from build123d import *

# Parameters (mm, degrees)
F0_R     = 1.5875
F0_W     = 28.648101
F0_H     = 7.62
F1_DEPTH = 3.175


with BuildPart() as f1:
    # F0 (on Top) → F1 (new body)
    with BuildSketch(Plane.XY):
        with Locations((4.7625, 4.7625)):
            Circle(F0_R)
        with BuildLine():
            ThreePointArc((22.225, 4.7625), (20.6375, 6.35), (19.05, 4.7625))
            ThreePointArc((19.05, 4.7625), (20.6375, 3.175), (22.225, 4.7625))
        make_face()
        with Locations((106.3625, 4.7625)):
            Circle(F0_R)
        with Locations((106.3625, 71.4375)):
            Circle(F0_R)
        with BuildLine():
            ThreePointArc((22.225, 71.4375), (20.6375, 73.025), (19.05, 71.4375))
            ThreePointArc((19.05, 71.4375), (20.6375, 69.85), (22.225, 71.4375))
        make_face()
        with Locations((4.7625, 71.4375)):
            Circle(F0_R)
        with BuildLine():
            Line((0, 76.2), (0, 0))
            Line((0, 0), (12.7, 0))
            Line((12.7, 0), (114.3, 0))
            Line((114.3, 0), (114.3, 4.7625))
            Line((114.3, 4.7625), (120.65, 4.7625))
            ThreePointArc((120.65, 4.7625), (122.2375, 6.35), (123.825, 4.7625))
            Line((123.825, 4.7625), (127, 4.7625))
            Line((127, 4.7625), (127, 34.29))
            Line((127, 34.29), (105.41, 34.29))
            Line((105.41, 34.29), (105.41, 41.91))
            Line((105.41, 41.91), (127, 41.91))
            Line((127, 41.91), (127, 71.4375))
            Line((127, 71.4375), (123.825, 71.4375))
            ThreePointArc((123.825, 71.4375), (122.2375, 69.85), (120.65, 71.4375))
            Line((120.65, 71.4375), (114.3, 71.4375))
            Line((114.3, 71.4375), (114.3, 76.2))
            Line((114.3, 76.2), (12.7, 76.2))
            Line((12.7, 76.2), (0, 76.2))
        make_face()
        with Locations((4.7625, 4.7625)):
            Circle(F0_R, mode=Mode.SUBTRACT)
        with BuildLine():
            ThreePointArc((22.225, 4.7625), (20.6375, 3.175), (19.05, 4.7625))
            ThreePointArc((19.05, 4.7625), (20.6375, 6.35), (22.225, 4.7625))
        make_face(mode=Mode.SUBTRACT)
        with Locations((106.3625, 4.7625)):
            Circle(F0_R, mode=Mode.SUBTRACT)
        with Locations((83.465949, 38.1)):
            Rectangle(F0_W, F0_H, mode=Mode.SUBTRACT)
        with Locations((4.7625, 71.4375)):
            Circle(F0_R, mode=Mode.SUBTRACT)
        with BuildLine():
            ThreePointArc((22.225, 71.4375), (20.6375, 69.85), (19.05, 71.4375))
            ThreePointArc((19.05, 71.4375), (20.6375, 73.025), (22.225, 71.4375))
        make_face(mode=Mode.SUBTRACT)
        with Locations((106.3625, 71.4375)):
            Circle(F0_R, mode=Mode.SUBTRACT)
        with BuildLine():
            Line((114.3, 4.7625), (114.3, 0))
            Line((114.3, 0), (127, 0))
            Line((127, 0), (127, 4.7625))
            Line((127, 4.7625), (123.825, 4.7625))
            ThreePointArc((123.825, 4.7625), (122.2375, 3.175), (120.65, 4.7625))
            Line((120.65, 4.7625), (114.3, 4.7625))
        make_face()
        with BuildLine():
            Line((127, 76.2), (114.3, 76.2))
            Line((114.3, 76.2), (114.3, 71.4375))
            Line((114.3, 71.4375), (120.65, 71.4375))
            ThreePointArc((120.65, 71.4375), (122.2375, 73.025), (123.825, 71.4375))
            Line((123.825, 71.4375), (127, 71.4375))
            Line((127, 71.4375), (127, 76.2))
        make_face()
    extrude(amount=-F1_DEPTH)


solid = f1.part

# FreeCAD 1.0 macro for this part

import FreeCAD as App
import Part
import Sketcher
Q = App.Units.Quantity

doc = App.newDocument("Part")
body = doc.addObject("PartDesign::Body", "Body")

# Sketch on XY plane
sketch1 = body.newObject("Sketcher::SketchObject", "Sketch")
sketch1.AttachmentSupport = (doc.getObject("XY_Plane"), [""])
sketch1.MapMode = "FlatFace"
sketch1.addGeometry(Part.LineSegment(App.Vector(0, 76.2, 0), App.Vector(0, 0, 0)), False)
sketch1.addGeometry(Part.LineSegment(App.Vector(0, 0, 0), App.Vector(127, 0, 0)), False)
sketch1.addGeometry(Part.LineSegment(App.Vector(127, 0, 0), App.Vector(127, 34.3, 0)), False)
sketch1.addGeometry(Part.LineSegment(App.Vector(127, 34.3, 0), App.Vector(105.4, 34.3, 0)), False)
sketch1.addGeometry(Part.LineSegment(App.Vector(105.4, 34.3, 0), App.Vector(105.4, 41.9, 0)), False)
sketch1.addGeometry(Part.LineSegment(App.Vector(105.4, 41.9, 0), App.Vector(127, 41.9, 0)), False)
sketch1.addGeometry(Part.LineSegment(App.Vector(127, 41.9, 0), App.Vector(127, 76.2, 0)), False)
sketch1.addGeometry(Part.LineSegment(App.Vector(127, 76.2, 0), App.Vector(0, 76.2, 0)), False)
sketch1.addGeometry(Part.Circle(App.Vector(122.2, 71.4, 0), App.Vector(0, 0, 1), 1.6), False)
sketch1.addGeometry(Part.Circle(App.Vector(122.2, 4.8, 0), App.Vector(0, 0, 1), 1.6), False)
sketch1.addGeometry(Part.Circle(App.Vector(4.8, 4.8, 0), App.Vector(0, 0, 1), 1.6), False)
sketch1.addGeometry(Part.Circle(App.Vector(20.6, 4.8, 0), App.Vector(0, 0, 1), 1.6), False)
sketch1.addGeometry(Part.Circle(App.Vector(106.4, 4.8, 0), App.Vector(0, 0, 1), 1.6), False)
sketch1.addGeometry(Part.Circle(App.Vector(4.8, 71.4, 0), App.Vector(0, 0, 1), 1.6), False)
sketch1.addGeometry(Part.Circle(App.Vector(20.6, 71.4, 0), App.Vector(0, 0, 1), 1.6), False)
sketch1.addGeometry(Part.LineSegment(App.Vector(97.8, 34.3, 0), App.Vector(69.1, 34.3, 0)), False)
sketch1.addGeometry(Part.LineSegment(App.Vector(69.1, 34.3, 0), App.Vector(69.1, 41.9, 0)), False)
sketch1.addGeometry(Part.LineSegment(App.Vector(69.1, 41.9, 0), App.Vector(97.8, 41.9, 0)), False)
sketch1.addGeometry(Part.LineSegment(App.Vector(97.8, 41.9, 0), App.Vector(97.8, 34.3, 0)), False)
sketch1.addGeometry(Part.Circle(App.Vector(106.4, 71.4, 0), App.Vector(0, 0, 1), 1.6), False)
sketch1.addConstraint(Sketcher.Constraint("Coincident", 0, 2, 1, 1))
sketch1.addConstraint(Sketcher.Constraint("Coincident", 1, 2, 2, 1))
sketch1.addConstraint(Sketcher.Constraint("Coincident", 2, 2, 3, 1))
sketch1.addConstraint(Sketcher.Constraint("Coincident", 3, 2, 4, 1))
sketch1.addConstraint(Sketcher.Constraint("Coincident", 4, 2, 5, 1))
sketch1.addConstraint(Sketcher.Constraint("Coincident", 5, 2, 6, 1))
sketch1.addConstraint(Sketcher.Constraint("Coincident", 6, 2, 7, 1))
sketch1.addConstraint(Sketcher.Constraint("Coincident", 7, 2, 0, 1))
sketch1.addConstraint(Sketcher.Constraint("Coincident", 15, 2, 16, 1))
sketch1.addConstraint(Sketcher.Constraint("Coincident", 16, 2, 17, 1))
sketch1.addConstraint(Sketcher.Constraint("Coincident", 17, 2, 18, 1))
sketch1.addConstraint(Sketcher.Constraint("Coincident", 18, 2, 15, 1))
sketch1.addConstraint(Sketcher.Constraint("Vertical", 0))
sketch1.addConstraint(Sketcher.Constraint("Horizontal", 1))
sketch1.addConstraint(Sketcher.Constraint("Vertical", 2))
sketch1.addConstraint(Sketcher.Constraint("Horizontal", 3))
sketch1.addConstraint(Sketcher.Constraint("Vertical", 4))
sketch1.addConstraint(Sketcher.Constraint("Horizontal", 5))
sketch1.addConstraint(Sketcher.Constraint("Vertical", 6))
sketch1.addConstraint(Sketcher.Constraint("Horizontal", 7))
sketch1.addConstraint(Sketcher.Constraint("Horizontal", 15))
sketch1.addConstraint(Sketcher.Constraint("Vertical", 16))
sketch1.addConstraint(Sketcher.Constraint("Horizontal", 17))
sketch1.addConstraint(Sketcher.Constraint("Vertical", 18))
sketch1.addConstraint(Sketcher.Constraint("Coincident", 0, 2, -1, 1))
sketch1.addConstraint(Sketcher.Constraint("Equal", 8, 9))
sketch1.addConstraint(Sketcher.Constraint("Equal", 9, 10))
sketch1.addConstraint(Sketcher.Constraint("Equal", 10, 11))
sketch1.addConstraint(Sketcher.Constraint("Equal", 11, 12))
sketch1.addConstraint(Sketcher.Constraint("Equal", 12, 13))
sketch1.addConstraint(Sketcher.Constraint("Equal", 13, 14))
sketch1.addConstraint(Sketcher.Constraint("Equal", 14, 19))
sketch1.addConstraint(Sketcher.Constraint("Horizontal", 9, 3, 10, 3))
sketch1.addConstraint(Sketcher.Constraint("Horizontal", 10, 3, 11, 3))
sketch1.addConstraint(Sketcher.Constraint("Horizontal", 11, 3, 12, 3))
sketch1.addConstraint(Sketcher.Constraint("Horizontal", 8, 3, 13, 3))
sketch1.addConstraint(Sketcher.Constraint("Horizontal", 13, 3, 14, 3))
sketch1.addConstraint(Sketcher.Constraint("Horizontal", 14, 3, 19, 3))
sketch1.addConstraint(Sketcher.Constraint("Horizontal", 3, 2, 15, 2))
sketch1.addConstraint(Sketcher.Constraint("Horizontal", 5, 2, 16, 2))
sketch1.addConstraint(Sketcher.Constraint("Vertical", 8, 3, 9, 3))
sketch1.addConstraint(Sketcher.Constraint("Vertical", 10, 3, 13, 3))
sketch1.addConstraint(Sketcher.Constraint("Vertical", 11, 3, 14, 3))
sketch1.addConstraint(Sketcher.Constraint("Vertical", 12, 3, 19, 3))
sketch1.addConstraint(Sketcher.Constraint("Vertical", 2, 2, 5, 2))
sketch1.addConstraint(Sketcher.Constraint("Equal", 2, 6))
sketch1.addConstraint(Sketcher.Constraint("DistanceX", 1, 1, 1, 2, Q("5 in")))
sketch1.addConstraint(Sketcher.Constraint("DistanceY", 0, 2, 0, 1, Q("3 in")))
sketch1.addConstraint(Sketcher.Constraint("Diameter", 8, Q("0.125 in")))
sketch1.addConstraint(Sketcher.Constraint("DistanceY", 4, 1, 4, 2, Q("0.3 in")))
sketch1.addConstraint(Sketcher.Constraint("DistanceX", 11, 3, 9, 3, Q("4 in")))
sketch1.addConstraint(Sketcher.Constraint("DistanceX", 10, 3, 12, 3, Q("4 in")))
sketch1.addConstraint(Sketcher.Constraint("DistanceX", 3, 2, 3, 1, Q("0.85 in")))
sketch1.addConstraint(Sketcher.Constraint("DistanceX", 17, 2, 4, 2, Q("0.3 in")))
sketch1.addConstraint(Sketcher.Constraint("DistanceX", -1, 1, 8, 3, Q("4.8125 in")))
sketch1.addConstraint(Sketcher.Constraint("DistanceY", -1, 1, 8, 3, Q("2.8125 in")))
sketch1.addConstraint(Sketcher.Constraint("DistanceY", -1, 1, 9, 3, Q("0.1875 in")))
sketch1.addConstraint(Sketcher.Constraint("DistanceX", -1, 1, 10, 3, Q("0.1875 in")))
sketch1.addConstraint(Sketcher.Constraint("DistanceX", 15, 2, 15, 1, Q("28.648101 mm")))
pad1 = body.newObject("PartDesign::Pad", "Pad")
pad1.Profile = sketch1
pad1.Length = Q("0.125 in")
pad1.Reversed = True

doc.recompute()
